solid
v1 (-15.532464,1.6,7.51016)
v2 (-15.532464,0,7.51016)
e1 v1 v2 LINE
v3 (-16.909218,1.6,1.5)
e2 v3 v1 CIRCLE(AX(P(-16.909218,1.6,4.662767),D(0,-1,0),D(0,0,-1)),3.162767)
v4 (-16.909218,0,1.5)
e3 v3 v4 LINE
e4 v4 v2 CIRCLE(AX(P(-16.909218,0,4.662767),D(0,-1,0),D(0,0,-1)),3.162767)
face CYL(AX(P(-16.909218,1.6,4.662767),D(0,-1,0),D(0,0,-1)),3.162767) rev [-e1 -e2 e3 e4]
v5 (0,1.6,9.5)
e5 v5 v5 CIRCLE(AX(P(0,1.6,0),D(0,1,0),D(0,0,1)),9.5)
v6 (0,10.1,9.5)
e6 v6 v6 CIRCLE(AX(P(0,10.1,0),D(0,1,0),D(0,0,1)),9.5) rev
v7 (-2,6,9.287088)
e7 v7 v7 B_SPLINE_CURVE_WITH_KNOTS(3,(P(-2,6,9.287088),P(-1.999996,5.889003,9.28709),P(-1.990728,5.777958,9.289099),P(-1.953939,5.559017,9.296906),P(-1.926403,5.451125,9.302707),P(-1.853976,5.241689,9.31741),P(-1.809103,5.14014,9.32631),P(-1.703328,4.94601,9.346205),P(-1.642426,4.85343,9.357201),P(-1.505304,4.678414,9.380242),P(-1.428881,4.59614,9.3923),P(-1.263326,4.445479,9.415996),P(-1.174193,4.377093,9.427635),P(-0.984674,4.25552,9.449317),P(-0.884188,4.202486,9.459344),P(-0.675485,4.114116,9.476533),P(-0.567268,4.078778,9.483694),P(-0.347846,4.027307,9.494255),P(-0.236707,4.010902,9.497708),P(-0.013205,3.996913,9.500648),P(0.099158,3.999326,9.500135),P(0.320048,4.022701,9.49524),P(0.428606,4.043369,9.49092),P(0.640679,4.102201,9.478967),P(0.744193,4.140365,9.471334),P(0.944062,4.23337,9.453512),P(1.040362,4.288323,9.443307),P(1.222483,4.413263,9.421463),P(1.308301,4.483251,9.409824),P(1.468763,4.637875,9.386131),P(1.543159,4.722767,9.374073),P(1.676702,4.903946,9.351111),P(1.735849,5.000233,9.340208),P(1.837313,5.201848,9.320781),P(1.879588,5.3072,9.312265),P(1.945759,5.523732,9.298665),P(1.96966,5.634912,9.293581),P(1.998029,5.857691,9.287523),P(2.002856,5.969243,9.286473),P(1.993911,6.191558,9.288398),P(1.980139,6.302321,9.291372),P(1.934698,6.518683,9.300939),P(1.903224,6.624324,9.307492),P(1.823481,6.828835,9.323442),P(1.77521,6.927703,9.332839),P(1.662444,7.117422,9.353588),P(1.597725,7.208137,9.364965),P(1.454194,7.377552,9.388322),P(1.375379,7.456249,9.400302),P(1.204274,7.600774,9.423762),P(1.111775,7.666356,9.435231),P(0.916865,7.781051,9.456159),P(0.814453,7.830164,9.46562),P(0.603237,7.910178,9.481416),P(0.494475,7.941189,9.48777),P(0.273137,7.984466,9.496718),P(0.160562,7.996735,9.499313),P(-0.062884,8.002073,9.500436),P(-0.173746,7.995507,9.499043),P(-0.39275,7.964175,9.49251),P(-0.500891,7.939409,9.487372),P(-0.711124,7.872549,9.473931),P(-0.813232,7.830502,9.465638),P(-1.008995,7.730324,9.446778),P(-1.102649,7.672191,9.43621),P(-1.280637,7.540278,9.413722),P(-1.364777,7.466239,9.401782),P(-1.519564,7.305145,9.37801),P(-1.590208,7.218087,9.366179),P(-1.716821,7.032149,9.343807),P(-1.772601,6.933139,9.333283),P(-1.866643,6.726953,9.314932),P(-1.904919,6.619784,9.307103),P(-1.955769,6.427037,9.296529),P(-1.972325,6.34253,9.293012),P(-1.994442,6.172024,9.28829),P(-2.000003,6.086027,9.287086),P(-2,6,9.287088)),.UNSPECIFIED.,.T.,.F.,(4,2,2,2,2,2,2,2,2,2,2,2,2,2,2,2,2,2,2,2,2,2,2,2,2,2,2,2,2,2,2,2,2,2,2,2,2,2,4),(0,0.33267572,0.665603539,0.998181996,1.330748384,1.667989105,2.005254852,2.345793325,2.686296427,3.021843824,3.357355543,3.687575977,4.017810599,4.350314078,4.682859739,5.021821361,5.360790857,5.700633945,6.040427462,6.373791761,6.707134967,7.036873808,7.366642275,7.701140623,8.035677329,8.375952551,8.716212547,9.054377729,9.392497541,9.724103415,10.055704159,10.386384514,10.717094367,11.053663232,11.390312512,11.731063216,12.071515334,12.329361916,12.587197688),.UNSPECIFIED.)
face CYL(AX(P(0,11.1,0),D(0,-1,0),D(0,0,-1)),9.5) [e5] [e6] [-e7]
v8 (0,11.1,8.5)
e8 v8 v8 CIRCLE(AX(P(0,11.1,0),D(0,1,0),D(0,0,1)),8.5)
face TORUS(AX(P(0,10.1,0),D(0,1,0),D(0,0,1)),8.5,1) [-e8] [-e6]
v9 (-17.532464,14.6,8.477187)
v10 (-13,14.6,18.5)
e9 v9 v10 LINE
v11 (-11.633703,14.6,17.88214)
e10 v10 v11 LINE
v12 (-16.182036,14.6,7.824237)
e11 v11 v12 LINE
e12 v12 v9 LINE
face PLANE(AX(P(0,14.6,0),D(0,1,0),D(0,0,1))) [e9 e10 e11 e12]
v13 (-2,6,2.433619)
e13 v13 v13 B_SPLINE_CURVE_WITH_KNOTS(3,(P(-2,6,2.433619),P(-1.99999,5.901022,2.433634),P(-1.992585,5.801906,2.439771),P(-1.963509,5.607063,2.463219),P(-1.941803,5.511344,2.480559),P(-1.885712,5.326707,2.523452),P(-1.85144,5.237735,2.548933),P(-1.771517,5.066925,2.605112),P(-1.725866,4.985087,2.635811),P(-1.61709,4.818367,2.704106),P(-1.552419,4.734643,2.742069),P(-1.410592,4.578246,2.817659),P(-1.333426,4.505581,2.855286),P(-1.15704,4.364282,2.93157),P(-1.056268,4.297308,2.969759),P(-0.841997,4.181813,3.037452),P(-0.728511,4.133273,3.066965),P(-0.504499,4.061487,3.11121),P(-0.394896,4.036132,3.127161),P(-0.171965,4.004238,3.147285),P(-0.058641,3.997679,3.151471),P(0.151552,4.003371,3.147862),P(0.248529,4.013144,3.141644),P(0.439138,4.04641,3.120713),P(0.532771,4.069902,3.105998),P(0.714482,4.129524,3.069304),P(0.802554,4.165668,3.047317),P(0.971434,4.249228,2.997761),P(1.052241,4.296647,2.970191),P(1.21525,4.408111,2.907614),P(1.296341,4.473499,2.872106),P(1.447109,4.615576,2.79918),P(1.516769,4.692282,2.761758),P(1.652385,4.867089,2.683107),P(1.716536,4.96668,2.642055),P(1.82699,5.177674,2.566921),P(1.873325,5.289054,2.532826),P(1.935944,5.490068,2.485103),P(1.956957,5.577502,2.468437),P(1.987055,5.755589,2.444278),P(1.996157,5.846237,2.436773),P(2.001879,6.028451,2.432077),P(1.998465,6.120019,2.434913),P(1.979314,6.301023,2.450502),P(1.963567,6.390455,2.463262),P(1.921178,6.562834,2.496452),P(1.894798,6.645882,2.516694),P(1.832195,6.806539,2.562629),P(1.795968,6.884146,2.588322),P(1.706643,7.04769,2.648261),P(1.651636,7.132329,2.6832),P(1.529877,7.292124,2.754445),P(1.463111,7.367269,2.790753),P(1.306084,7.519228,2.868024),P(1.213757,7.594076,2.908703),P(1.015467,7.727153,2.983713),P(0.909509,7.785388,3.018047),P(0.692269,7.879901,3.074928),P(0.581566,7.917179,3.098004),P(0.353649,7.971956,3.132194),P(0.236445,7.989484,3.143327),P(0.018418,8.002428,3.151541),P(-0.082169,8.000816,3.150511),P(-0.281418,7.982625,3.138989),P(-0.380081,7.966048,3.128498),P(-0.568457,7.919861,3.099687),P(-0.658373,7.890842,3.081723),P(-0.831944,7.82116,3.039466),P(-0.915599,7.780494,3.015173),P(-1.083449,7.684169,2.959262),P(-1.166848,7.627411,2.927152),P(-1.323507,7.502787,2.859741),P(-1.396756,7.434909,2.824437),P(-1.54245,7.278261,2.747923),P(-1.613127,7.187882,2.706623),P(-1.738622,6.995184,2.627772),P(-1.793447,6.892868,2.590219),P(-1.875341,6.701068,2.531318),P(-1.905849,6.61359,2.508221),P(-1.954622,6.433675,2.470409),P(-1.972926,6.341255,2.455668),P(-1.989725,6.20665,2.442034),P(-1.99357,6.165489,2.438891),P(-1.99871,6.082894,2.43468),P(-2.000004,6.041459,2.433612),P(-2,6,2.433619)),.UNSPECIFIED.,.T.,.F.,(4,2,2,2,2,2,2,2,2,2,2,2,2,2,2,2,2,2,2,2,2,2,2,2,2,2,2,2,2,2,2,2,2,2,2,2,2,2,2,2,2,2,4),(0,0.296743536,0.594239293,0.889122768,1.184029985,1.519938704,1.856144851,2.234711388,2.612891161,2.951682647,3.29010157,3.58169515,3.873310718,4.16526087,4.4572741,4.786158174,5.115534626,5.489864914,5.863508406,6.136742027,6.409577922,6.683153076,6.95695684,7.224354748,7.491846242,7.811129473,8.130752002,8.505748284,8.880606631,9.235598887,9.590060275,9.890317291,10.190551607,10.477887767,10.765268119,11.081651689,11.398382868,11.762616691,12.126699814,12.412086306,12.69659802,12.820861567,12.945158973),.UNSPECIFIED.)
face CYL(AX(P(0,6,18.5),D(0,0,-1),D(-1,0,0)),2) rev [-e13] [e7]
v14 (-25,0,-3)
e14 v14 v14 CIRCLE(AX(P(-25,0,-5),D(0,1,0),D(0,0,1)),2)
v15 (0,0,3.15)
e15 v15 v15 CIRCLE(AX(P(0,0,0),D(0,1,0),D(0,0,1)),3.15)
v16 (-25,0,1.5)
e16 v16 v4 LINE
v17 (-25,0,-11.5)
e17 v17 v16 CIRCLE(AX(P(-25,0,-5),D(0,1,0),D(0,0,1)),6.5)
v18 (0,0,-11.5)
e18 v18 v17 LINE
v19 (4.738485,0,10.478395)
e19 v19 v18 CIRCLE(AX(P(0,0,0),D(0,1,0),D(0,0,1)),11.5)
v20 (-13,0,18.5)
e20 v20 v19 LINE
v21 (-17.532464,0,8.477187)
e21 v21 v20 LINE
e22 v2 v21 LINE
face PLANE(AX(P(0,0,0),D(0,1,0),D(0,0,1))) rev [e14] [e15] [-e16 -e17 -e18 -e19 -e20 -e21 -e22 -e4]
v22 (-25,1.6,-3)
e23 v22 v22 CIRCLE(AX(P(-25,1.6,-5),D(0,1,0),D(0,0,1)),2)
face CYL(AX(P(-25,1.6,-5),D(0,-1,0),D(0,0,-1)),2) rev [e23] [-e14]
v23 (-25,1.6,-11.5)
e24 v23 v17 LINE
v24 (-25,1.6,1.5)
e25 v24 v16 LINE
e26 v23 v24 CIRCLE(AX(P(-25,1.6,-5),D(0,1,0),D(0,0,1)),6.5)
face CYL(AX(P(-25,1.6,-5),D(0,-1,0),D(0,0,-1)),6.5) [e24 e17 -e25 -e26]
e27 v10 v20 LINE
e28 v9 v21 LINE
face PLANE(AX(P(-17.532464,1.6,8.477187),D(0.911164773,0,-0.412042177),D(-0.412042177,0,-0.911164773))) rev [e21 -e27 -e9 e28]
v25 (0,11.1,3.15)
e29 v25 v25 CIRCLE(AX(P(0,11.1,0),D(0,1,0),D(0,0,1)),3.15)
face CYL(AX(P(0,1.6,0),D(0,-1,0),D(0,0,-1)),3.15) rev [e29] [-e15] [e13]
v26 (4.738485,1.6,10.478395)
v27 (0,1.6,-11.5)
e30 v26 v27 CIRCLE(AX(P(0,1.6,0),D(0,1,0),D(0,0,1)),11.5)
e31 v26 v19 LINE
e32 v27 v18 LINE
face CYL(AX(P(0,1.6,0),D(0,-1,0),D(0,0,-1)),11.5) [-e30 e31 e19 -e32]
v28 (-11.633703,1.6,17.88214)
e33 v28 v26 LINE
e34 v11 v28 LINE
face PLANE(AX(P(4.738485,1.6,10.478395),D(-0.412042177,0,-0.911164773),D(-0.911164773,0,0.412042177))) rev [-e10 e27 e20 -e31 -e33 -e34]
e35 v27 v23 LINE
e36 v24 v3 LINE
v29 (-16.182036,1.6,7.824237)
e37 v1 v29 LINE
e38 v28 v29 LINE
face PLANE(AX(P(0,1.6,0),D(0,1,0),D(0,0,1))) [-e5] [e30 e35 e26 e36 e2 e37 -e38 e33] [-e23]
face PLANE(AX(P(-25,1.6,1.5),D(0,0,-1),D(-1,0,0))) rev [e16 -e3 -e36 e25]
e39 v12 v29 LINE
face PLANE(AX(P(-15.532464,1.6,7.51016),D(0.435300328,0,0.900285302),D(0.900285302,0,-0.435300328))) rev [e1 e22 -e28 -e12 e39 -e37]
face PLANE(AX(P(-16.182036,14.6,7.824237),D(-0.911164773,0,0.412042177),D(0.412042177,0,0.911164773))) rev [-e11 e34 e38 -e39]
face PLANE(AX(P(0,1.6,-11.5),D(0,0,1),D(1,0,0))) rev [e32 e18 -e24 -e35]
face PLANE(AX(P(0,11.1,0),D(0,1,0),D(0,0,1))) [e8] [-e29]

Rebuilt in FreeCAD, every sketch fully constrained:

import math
import FreeCAD as App
import Part
import Sketcher
from FreeCAD import Vector
Q = App.Units.Quantity


def edges_at(feature, points):
    """Names of the edges that pass closest to the given points."""
    edges = feature.Shape.Edges
    near = lambda p: min(range(len(edges)), key=lambda i: edges[i].distToShape(Part.Vertex(*p))[0])
    return sorted({f"Edge{near(p) + 1}" for p in points})


def add_polygon(sketch, points):
    """Adds a closed chain of lines whose ends are joined by coincident constraints."""
    first, n = sketch.GeometryCount, len(points)
    for a, b in zip(points, points[1:] + points[:1]):
        sketch.addGeometry(Part.LineSegment(App.Vector(*a, 0), App.Vector(*b, 0)), False)
    for i in range(n):
        sketch.addConstraint(Sketcher.Constraint("Coincident", first + i, 2, first + (i + 1) % n, 1))

doc = App.newDocument("Part")
body = doc.addObject("PartDesign::Body", "Body")

sketch1 = doc.addObject("Sketcher::SketchObject", "Sketch")
body.addObject(sketch1)
sketch1.AttachmentSupport = (doc.XZ_Plane, [""])
sketch1.MapMode = "FlatFace"
sketch1.addGeometry([
    Part.LineSegment(Vector(0, -11.5, 0), Vector(-25, -11.5, 0)),
    Part.ArcOfCircle(Part.Circle(Vector(-25, -5, 0), Vector(0, 0, 1), 6.5), math.radians(90), math.radians(270)),
    Part.LineSegment(Vector(-25, 1.5, 0), Vector(-16.9, 1.5, 0)),
    Part.ArcOfCircle(Part.Circle(Vector(-16.9, 4.7, 0), Vector(0, 0, 1), 3.2), math.radians(-90), math.radians(64)),
    Part.LineSegment(Vector(-15.5, 7.5, 0), Vector(-17.5, 8.5, 0)),
    Part.LineSegment(Vector(-17.5, 8.5, 0), Vector(-13, 18.5, 0)),
    Part.LineSegment(Vector(-13, 18.5, 0), Vector(4.7, 10.5, 0)),
    Part.ArcOfCircle(Part.Circle(Vector(0, 0, 0), Vector(0, 0, 1), 11.5), math.radians(-90), math.radians(66)),
    Part.Circle(Vector(0, 0, 0), Vector(0, 0, 1), 3.1),
    Part.Circle(Vector(-25, -5, 0), Vector(0, 0, 1), 2),
], False)
sketch1.addConstraint([
    Sketcher.Constraint("Tangent", 0, 2, 1, 2),
    Sketcher.Constraint("Tangent", 1, 1, 2, 1),
    Sketcher.Constraint("Tangent", 2, 2, 3, 1),
    Sketcher.Constraint("Tangent", 3, 2, 4, 1),
    Sketcher.Constraint("Coincident", 4, 2, 5, 1),
    Sketcher.Constraint("Coincident", 5, 2, 6, 1),
    Sketcher.Constraint("Tangent", 6, 2, 7, 2),
    Sketcher.Constraint("Tangent", 7, 1, 0, 1),
    Sketcher.Constraint("Horizontal", 0),
    Sketcher.Constraint("Horizontal", 2),
    Sketcher.Constraint("Coincident", 7, 3, -1, 1),
    Sketcher.Constraint("Coincident", 8, 3, -1, 1),
    Sketcher.Constraint("Coincident", 9, 3, 1, 3),
    Sketcher.Constraint("Perpendicular", 5, 6),
    Sketcher.Constraint("Diameter", 9, Q("4 mm")),
    Sketcher.Constraint("Diameter", 8, Q("6.3 mm")),
    Sketcher.Constraint("Radius", 1, Q("6.5 mm")),
    Sketcher.Constraint("Radius", 7, Q("11.5 mm")),
    Sketcher.Constraint("DistanceX", 0, 2, 0, 1, Q("25 mm")),
    Sketcher.Constraint("Distance", 5, Q("11 mm")),
    Sketcher.Constraint("DistanceX", 5, 2, -1, 1, Q("13 mm")),
    Sketcher.Constraint("DistanceX", 4, 2, 3, 2, Q("2 mm")),
    Sketcher.Constraint("DistanceY", 2, 2, 5, 2, Q("17 mm")),
    Sketcher.Constraint("Radius", 3, Q("3.162767 mm")),
])
pad1 = doc.addObject("PartDesign::Pad", "Pad")
body.addObject(pad1)
pad1.Profile = sketch1
pad1.Length = 1.6
pad1.Reversed = True

sketch2 = doc.addObject("Sketcher::SketchObject", "Sketch001")
body.addObject(sketch2)
sketch2.AttachmentSupport = (doc.XZ_Plane, [""])
sketch2.MapMode = "FlatFace"
sketch2.AttachmentOffset = App.Placement(Vector(0, 0, -1.6), App.Rotation())
sketch2.addGeometry([
    Part.Circle(Vector(0, 0, 0), Vector(0, 0, 1), 9.5),
    Part.Circle(Vector(0, 0, 0), Vector(0, 0, 1), 3.1),
], False)
sketch2.addConstraint([
    Sketcher.Constraint("Coincident", 0, 3, -1, 1),
    Sketcher.Constraint("Coincident", 1, 3, -1, 1),
    Sketcher.Constraint("Diameter", 0, Q("19 mm")),
    Sketcher.Constraint("Diameter", 1, Q("6.3 mm")),
])
pad2 = doc.addObject("PartDesign::Pad", "Pad001")
body.addObject(pad2)
pad2.Profile = sketch2
pad2.Length = 9.5
pad2.Reversed = True
doc.recompute()

fillet = doc.addObject("PartDesign::Fillet", "Fillet")
body.addObject(fillet)
fillet.Base = (pad2, edges_at(pad2, [(-9.5, 11.1, 0)]))
fillet.Radius = 1

sketch3 = doc.addObject("Sketcher::SketchObject", "Sketch002")
body.addObject(sketch3)
sketch3.AttachmentSupport = (doc.XZ_Plane, [""])
sketch3.MapMode = "FlatFace"
sketch3.AttachmentOffset = App.Placement(Vector(0, 0, -1.6), App.Rotation())
add_polygon(sketch3, [(-17.5, 8.5), (-13, 18.5), (-11.6, 17.9), (-16.2, 7.8)])
sketch3.addConstraint([
    Sketcher.Constraint("Perpendicular", 0, 1),
    Sketcher.Constraint("Perpendicular", 1, 2),
    Sketcher.Constraint("Distance", 0, Q("11 mm")),
    Sketcher.Constraint("DistanceX", 0, 2, -1, 1, Q("13 mm")),
    Sketcher.Constraint("Distance", 3, Q("1.5 mm")),
    Sketcher.Constraint("DistanceY", -1, 1, 0, 2, Q("18.5 mm")),
    Sketcher.Constraint("DistanceY", -1, 1, 1, 2, Q("17.88214 mm")),
    Sketcher.Constraint("DistanceY", 2, 2, 3, 2, Q("0.65295 mm")),
])
pad3 = doc.addObject("PartDesign::Pad", "Pad002")
body.addObject(pad3)
pad3.Profile = sketch3
pad3.Length = 13
pad3.Reversed = True

sketch4 = doc.addObject("Sketcher::SketchObject", "Sketch003")
body.addObject(sketch4)
sketch4.AttachmentSupport = (doc.XY_Plane, [""])
sketch4.MapMode = "FlatFace"
sketch4.addGeometry(Part.Circle(Vector(0, 6, 0), Vector(0, 0, 1), 2), False)
sketch4.addConstraint([
    Sketcher.Constraint("PointOnObject", 0, 3, -2),
    Sketcher.Constraint("Diameter", 0, Q("4 mm")),
    Sketcher.Constraint("DistanceY", -1, 1, 0, 3, Q("6 mm")),
])
pocket1 = doc.addObject("PartDesign::Pocket", "Pocket")
body.addObject(pocket1)
pocket1.Profile = sketch4
pocket1.Type = "ThroughAll"
pocket1.Reversed = True

doc.recompute()
